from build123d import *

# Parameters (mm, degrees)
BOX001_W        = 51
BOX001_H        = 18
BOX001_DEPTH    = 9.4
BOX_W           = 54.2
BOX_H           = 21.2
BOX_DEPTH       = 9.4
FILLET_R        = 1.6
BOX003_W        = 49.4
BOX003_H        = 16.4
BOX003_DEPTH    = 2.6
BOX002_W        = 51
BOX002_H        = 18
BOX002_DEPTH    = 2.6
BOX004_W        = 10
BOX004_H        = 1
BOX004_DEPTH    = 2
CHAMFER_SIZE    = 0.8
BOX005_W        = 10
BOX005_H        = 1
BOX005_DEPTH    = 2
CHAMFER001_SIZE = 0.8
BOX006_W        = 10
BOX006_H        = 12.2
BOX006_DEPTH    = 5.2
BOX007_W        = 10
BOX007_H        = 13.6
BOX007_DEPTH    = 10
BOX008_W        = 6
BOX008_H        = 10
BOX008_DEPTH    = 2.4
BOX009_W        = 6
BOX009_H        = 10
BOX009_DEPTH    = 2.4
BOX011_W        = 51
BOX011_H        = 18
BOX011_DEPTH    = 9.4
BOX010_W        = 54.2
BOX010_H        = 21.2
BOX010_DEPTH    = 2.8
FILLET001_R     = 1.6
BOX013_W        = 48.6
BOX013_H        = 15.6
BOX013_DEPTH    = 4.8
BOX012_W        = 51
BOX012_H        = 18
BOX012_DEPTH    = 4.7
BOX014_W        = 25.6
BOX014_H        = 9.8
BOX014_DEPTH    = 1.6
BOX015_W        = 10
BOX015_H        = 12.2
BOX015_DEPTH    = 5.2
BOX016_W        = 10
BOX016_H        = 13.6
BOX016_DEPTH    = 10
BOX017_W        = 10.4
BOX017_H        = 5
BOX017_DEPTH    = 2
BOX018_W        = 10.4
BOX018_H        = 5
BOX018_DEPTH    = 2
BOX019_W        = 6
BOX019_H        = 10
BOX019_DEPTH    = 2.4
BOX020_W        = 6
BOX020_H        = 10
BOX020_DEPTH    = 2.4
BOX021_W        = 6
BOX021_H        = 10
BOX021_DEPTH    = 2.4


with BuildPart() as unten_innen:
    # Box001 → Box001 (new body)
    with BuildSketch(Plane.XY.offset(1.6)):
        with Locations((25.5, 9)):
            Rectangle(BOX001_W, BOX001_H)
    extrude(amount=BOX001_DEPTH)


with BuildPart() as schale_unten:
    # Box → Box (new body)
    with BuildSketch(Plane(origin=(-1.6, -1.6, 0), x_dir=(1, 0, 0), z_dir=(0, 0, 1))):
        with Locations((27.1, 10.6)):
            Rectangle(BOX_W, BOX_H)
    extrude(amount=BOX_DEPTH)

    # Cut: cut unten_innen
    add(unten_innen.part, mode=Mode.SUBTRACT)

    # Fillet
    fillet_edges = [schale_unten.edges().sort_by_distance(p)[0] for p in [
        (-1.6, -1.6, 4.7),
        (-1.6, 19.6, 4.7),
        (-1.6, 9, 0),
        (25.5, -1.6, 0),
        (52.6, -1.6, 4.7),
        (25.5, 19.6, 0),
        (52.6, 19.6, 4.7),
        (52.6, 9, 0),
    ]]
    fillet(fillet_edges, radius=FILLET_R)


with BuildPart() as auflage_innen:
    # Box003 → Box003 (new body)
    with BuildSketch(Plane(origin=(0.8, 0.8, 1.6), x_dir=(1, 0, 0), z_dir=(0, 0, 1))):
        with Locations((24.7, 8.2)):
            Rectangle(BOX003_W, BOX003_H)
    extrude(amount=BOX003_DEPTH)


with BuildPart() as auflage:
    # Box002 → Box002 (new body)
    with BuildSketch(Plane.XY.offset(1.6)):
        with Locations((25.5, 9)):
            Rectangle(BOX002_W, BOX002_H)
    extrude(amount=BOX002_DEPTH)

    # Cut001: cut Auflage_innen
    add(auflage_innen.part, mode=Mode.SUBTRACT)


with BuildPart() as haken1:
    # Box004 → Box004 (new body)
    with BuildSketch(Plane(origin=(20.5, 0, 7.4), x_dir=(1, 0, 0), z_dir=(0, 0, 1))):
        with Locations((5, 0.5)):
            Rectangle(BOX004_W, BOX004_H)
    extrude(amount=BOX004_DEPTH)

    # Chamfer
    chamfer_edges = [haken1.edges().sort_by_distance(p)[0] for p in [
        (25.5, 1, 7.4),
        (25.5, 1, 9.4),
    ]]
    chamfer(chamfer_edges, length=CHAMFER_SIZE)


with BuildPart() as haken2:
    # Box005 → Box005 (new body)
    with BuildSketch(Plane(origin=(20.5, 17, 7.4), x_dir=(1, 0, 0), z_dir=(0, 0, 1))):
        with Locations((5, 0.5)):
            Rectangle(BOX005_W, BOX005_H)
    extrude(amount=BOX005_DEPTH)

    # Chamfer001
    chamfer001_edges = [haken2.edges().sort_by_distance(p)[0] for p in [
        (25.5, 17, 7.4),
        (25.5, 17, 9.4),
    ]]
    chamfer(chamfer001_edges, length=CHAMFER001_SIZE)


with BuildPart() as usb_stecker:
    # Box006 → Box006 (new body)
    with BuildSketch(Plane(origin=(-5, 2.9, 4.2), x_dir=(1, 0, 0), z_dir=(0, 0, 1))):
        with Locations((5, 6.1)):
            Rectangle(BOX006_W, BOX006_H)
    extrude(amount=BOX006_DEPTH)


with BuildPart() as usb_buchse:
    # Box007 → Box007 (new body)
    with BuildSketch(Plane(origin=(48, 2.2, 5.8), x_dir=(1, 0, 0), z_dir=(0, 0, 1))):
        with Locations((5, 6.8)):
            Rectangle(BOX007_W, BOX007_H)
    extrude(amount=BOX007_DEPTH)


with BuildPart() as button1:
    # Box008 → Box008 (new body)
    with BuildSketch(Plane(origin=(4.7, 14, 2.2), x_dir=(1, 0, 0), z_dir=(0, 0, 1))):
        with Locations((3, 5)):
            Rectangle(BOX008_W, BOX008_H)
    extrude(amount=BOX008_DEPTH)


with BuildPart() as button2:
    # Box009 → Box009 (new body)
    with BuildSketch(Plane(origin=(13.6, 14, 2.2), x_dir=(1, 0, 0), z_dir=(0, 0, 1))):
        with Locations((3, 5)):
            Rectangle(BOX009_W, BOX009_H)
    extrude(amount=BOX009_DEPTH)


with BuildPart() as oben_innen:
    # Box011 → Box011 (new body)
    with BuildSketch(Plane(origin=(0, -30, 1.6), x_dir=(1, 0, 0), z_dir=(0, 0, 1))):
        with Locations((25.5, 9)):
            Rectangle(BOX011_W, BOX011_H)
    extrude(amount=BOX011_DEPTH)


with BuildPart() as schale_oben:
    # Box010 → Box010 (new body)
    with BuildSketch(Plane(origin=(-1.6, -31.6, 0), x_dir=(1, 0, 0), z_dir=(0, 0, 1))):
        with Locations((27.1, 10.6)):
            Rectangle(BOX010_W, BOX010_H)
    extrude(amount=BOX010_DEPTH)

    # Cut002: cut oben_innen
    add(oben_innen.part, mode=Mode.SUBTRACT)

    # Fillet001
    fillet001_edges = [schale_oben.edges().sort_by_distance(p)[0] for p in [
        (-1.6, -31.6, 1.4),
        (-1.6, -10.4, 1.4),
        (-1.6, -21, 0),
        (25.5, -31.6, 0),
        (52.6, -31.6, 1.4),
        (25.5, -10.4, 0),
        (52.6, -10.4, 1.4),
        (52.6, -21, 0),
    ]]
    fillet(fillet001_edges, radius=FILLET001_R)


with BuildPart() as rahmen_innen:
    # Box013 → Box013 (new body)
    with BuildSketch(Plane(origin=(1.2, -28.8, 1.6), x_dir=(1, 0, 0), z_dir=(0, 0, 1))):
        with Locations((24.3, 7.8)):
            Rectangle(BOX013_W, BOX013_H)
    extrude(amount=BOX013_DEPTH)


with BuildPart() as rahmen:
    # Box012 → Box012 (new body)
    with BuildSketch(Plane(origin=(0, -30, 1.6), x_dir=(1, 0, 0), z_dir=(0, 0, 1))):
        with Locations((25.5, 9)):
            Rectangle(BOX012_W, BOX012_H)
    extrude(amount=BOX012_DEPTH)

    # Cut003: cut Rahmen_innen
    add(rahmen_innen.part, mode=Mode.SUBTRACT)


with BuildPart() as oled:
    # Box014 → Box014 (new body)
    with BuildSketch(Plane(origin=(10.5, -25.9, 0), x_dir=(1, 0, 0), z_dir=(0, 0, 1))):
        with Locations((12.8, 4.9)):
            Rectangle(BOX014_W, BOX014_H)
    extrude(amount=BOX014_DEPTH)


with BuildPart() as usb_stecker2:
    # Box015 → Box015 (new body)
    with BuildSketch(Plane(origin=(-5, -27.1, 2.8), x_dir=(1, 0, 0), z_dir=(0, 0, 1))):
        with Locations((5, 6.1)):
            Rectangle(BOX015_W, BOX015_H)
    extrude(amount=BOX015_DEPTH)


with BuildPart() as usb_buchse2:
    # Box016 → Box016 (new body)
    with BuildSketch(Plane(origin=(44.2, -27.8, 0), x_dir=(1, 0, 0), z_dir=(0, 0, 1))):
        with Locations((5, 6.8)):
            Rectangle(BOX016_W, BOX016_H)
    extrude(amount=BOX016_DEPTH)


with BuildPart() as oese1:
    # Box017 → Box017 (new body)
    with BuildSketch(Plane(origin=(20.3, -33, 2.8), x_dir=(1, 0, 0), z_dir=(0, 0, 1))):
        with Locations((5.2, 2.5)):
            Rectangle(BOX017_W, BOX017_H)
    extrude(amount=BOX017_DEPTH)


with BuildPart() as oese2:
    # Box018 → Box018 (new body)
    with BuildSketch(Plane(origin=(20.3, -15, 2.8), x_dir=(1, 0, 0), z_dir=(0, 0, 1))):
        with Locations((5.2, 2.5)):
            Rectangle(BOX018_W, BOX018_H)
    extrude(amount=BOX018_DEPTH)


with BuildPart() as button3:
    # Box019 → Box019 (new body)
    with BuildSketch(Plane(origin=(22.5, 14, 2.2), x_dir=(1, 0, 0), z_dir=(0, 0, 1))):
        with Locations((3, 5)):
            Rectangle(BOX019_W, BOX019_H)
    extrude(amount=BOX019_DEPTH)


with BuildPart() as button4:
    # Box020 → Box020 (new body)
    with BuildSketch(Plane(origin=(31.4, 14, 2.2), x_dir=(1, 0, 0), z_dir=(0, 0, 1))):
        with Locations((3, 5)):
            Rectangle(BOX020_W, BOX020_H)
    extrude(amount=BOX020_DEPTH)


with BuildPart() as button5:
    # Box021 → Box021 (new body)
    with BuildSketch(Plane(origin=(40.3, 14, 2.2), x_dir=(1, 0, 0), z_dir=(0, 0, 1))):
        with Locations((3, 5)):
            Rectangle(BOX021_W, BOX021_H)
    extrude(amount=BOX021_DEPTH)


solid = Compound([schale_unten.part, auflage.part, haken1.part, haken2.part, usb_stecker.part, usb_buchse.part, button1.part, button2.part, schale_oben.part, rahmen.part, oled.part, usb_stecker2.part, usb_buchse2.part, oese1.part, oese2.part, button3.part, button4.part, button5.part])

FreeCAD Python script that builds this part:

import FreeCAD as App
import Part
import Sketcher


def edges_at(feature, points):
    """Names of the edges that pass closest to the given points."""
    edges = feature.Shape.Edges
    near = lambda p: min(range(len(edges)), key=lambda i: edges[i].distToShape(Part.Vertex(*p))[0])
    return sorted({f"Edge{near(p) + 1}" for p in points})


def add_polygon(sketch, points):
    """Adds a closed chain of lines whose ends are joined by coincident constraints."""
    first, n = sketch.GeometryCount, len(points)
    for a, b in zip(points, points[1:] + points[:1]):
        sketch.addGeometry(Part.LineSegment(App.Vector(*a, 0), App.Vector(*b, 0)), False)
    for i in range(n):
        sketch.addConstraint(Sketcher.Constraint("Coincident", first + i, 2, first + (i + 1) % n, 1))

doc = App.newDocument("Part")
body = doc.addObject("PartDesign::Body", "Body")

sketch1 = doc.addObject("Sketcher::SketchObject", "Sketch")
body.addObject(sketch1)
sketch1.AttachmentSupport = (doc.XY_Plane, [""])
sketch1.MapMode = "FlatFace"
sketch1.AttachmentOffset = App.Placement(App.Vector(0, 0, 1.6), App.Rotation())
add_polygon(sketch1, [(0, 18), (0, 0), (51, 0), (51, 18)])
sketch1.addConstraint(Sketcher.Constraint("Vertical", 0))
sketch1.addConstraint(Sketcher.Constraint("Horizontal", 1))
sketch1.addConstraint(Sketcher.Constraint("Vertical", 2))
sketch1.addConstraint(Sketcher.Constraint("Horizontal", 3))
sketch1.addConstraint(Sketcher.Constraint("Coincident", 0, 2, -1, 1))
sketch1.addConstraint(Sketcher.Constraint("DistanceX", 1, 1, 1, 2, 51.0))
sketch1.addConstraint(Sketcher.Constraint("DistanceY", 0, 2, 0, 1, 18.0))
pad1 = doc.addObject("PartDesign::Pad", "Pad")
body.addObject(pad1)
pad1.Profile = sketch1
pad1.Length = 9.4
body2 = doc.addObject("PartDesign::Body", "Body001")

sketch2 = doc.addObject("Sketcher::SketchObject", "Sketch001")
body2.addObject(sketch2)
sketch2.AttachmentSupport = (doc.getObject("XY_Plane001"), [""])
sketch2.MapMode = "FlatFace"
add_polygon(sketch2, [(-2, 20), (-2, -2), (53, -2), (53, 20)])
sketch2.addConstraint(Sketcher.Constraint("Vertical", 0))
sketch2.addConstraint(Sketcher.Constraint("Horizontal", 1))
sketch2.addConstraint(Sketcher.Constraint("Vertical", 2))
sketch2.addConstraint(Sketcher.Constraint("Horizontal", 3))
sketch2.addConstraint(Sketcher.Constraint("DistanceX", 1, 1, 1, 2, 54.2))
sketch2.addConstraint(Sketcher.Constraint("DistanceY", 0, 2, 0, 1, 21.2))
sketch2.addConstraint(Sketcher.Constraint("DistanceX", 0, 2, -1, 1, 1.6))
sketch2.addConstraint(Sketcher.Constraint("DistanceY", 0, 2, -1, 1, 1.6))
pad2 = doc.addObject("PartDesign::Pad", "Pad001")
body2.addObject(pad2)
pad2.Profile = sketch2
pad2.Length = 9.4
doc.recompute()

boolean = doc.addObject("PartDesign::Boolean", "Boolean")
body2.addObject(boolean)
boolean.Type = "Cut"
boolean.addObjects([body])
doc.recompute()

fillet = doc.addObject("PartDesign::Fillet", "Fillet")
body2.addObject(fillet)
fillet.Base = (boolean, edges_at(boolean, [
    (-1.6, -1.6, 4.7),
    (-1.6, 19.6, 4.7),
    (-1.6, 9, 0),
    (25.5, -1.6, 0),
    (52.6, -1.6, 4.7),
    (25.5, 19.6, 0),
    (52.6, 19.6, 4.7),
    (52.6, 9, 0),
]))
fillet.Radius = 1.6
body3 = doc.addObject("PartDesign::Body", "Body002")

sketch3 = doc.addObject("Sketcher::SketchObject", "Sketch002")
body3.addObject(sketch3)
sketch3.AttachmentSupport = (doc.getObject("XY_Plane002"), [""])
sketch3.MapMode = "FlatFace"
sketch3.AttachmentOffset = App.Placement(App.Vector(0, 0, 1.6), App.Rotation())
add_polygon(sketch3, [(1, 17), (1, 1), (50, 1), (50, 17)])
sketch3.addConstraint(Sketcher.Constraint("Vertical", 0))
sketch3.addConstraint(Sketcher.Constraint("Horizontal", 1))
sketch3.addConstraint(Sketcher.Constraint("Vertical", 2))
sketch3.addConstraint(Sketcher.Constraint("Horizontal", 3))
sketch3.addConstraint(Sketcher.Constraint("DistanceX", 1, 1, 1, 2, 49.4))
sketch3.addConstraint(Sketcher.Constraint("DistanceY", 0, 2, 0, 1, 16.4))
sketch3.addConstraint(Sketcher.Constraint("DistanceX", -1, 1, 0, 2, 0.8))
sketch3.addConstraint(Sketcher.Constraint("DistanceY", -1, 1, 0, 2, 0.8))
pad3 = doc.addObject("PartDesign::Pad", "Pad002")
body3.addObject(pad3)
pad3.Profile = sketch3
pad3.Length = 2.6
body4 = doc.addObject("PartDesign::Body", "Body003")

sketch4 = doc.addObject("Sketcher::SketchObject", "Sketch003")
body4.addObject(sketch4)
sketch4.AttachmentSupport = (doc.getObject("XY_Plane003"), [""])
sketch4.MapMode = "FlatFace"
sketch4.AttachmentOffset = App.Placement(App.Vector(0, 0, 1.6), App.Rotation())
add_polygon(sketch4, [(0, 18), (0, 0), (51, 0), (51, 18)])
sketch4.addConstraint(Sketcher.Constraint("Vertical", 0))
sketch4.addConstraint(Sketcher.Constraint("Horizontal", 1))
sketch4.addConstraint(Sketcher.Constraint("Vertical", 2))
sketch4.addConstraint(Sketcher.Constraint("Horizontal", 3))
sketch4.addConstraint(Sketcher.Constraint("Coincident", 0, 2, -1, 1))
sketch4.addConstraint(Sketcher.Constraint("DistanceX", 1, 1, 1, 2, 51.0))
sketch4.addConstraint(Sketcher.Constraint("DistanceY", 0, 2, 0, 1, 18.0))
pad4 = doc.addObject("PartDesign::Pad", "Pad003")
body4.addObject(pad4)
pad4.Profile = sketch4
pad4.Length = 2.6
doc.recompute()

boolean2 = doc.addObject("PartDesign::Boolean", "Boolean001")
body4.addObject(boolean2)
boolean2.Type = "Cut"
boolean2.addObjects([body3])
body5 = doc.addObject("PartDesign::Body", "Body004")

sketch5 = doc.addObject("Sketcher::SketchObject", "Sketch004")
body5.addObject(sketch5)
sketch5.AttachmentSupport = (doc.getObject("XY_Plane004"), [""])
sketch5.MapMode = "FlatFace"
sketch5.AttachmentOffset = App.Placement(App.Vector(0, 0, 7.4), App.Rotation())
add_polygon(sketch5, [(20.5, 1), (20.5, 0), (30.5, 0), (30.5, 1)])
sketch5.addConstraint(Sketcher.Constraint("Vertical", 0))
sketch5.addConstraint(Sketcher.Constraint("Horizontal", 1))
sketch5.addConstraint(Sketcher.Constraint("Vertical", 2))
sketch5.addConstraint(Sketcher.Constraint("Horizontal", 3))
sketch5.addConstraint(Sketcher.Constraint("PointOnObject", 0, 2, -1))
sketch5.addConstraint(Sketcher.Constraint("DistanceX", 1, 1, 1, 2, 10.0))
sketch5.addConstraint(Sketcher.Constraint("DistanceY", 0, 2, 0, 1, 1.0))
sketch5.addConstraint(Sketcher.Constraint("DistanceX", -1, 1, 0, 2, 20.5))
pad5 = doc.addObject("PartDesign::Pad", "Pad004")
body5.addObject(pad5)
pad5.Profile = sketch5
pad5.Length = 2
doc.recompute()

chamfer = doc.addObject("PartDesign::Chamfer", "Chamfer")
body5.addObject(chamfer)
chamfer.Base = (pad5, edges_at(pad5, [(25.5, 1, 7.4), (25.5, 1, 9.4)]))
chamfer.Size = 0.8
body6 = doc.addObject("PartDesign::Body", "Body005")

sketch6 = doc.addObject("Sketcher::SketchObject", "Sketch005")
body6.addObject(sketch6)
sketch6.AttachmentSupport = (doc.getObject("XY_Plane005"), [""])
sketch6.MapMode = "FlatFace"
sketch6.AttachmentOffset = App.Placement(App.Vector(0, 0, 7.4), App.Rotation())
add_polygon(sketch6, [(20.5, 18), (20.5, 17), (30.5, 17), (30.5, 18)])
sketch6.addConstraint(Sketcher.Constraint("Vertical", 0))
sketch6.addConstraint(Sketcher.Constraint("Horizontal", 1))
sketch6.addConstraint(Sketcher.Constraint("Vertical", 2))
sketch6.addConstraint(Sketcher.Constraint("Horizontal", 3))
sketch6.addConstraint(Sketcher.Constraint("DistanceX", 1, 1, 1, 2, 10.0))
sketch6.addConstraint(Sketcher.Constraint("DistanceY", 0, 2, 0, 1, 1.0))
sketch6.addConstraint(Sketcher.Constraint("DistanceY", -1, 1, 0, 2, 17.0))
sketch6.addConstraint(Sketcher.Constraint("DistanceX", -1, 1, 0, 2, 20.5))
pad6 = doc.addObject("PartDesign::Pad", "Pad005")
body6.addObject(pad6)
pad6.Profile = sketch6
pad6.Length = 2
doc.recompute()

chamfer2 = doc.addObject("PartDesign::Chamfer", "Chamfer001")
body6.addObject(chamfer2)
chamfer2.Base = (pad6, edges_at(pad6, [(25.5, 17, 7.4), (25.5, 17, 9.4)]))
chamfer2.Size = 0.8
body7 = doc.addObject("PartDesign::Body", "Body006")

sketch7 = doc.addObject("Sketcher::SketchObject", "Sketch006")
body7.addObject(sketch7)
sketch7.AttachmentSupport = (doc.getObject("XY_Plane006"), [""])
sketch7.MapMode = "FlatFace"
sketch7.AttachmentOffset = App.Placement(App.Vector(0, 0, 4.2), App.Rotation())
add_polygon(sketch7, [(-5, 15), (-5, 3), (5, 3), (5, 15)])
sketch7.addConstraint(Sketcher.Constraint("Vertical", 0))
sketch7.addConstraint(Sketcher.Constraint("Horizontal", 1))
sketch7.addConstraint(Sketcher.Constraint("Vertical", 2))
sketch7.addConstraint(Sketcher.Constraint("Horizontal", 3))
sketch7.addConstraint(Sketcher.Constraint("DistanceX", 1, 1, 1, 2, 10.0))
sketch7.addConstraint(Sketcher.Constraint("DistanceY", 0, 2, 0, 1, 12.2))
sketch7.addConstraint(Sketcher.Constraint("DistanceX", 0, 2, -1, 1, 5.0))
sketch7.addConstraint(Sketcher.Constraint("DistanceY", -1, 1, 0, 2, 2.9))
pad7 = doc.addObject("PartDesign::Pad", "Pad006")
body7.addObject(pad7)
pad7.Profile = sketch7
pad7.Length = 5.2
body8 = doc.addObject("PartDesign::Body", "Body007")

sketch8 = doc.addObject("Sketcher::SketchObject", "Sketch007")
body8.addObject(sketch8)
sketch8.AttachmentSupport = (doc.getObject("XY_Plane007"), [""])
sketch8.MapMode = "FlatFace"
sketch8.AttachmentOffset = App.Placement(App.Vector(0, 0, 5.8), App.Rotation())
add_polygon(sketch8, [(48, 16), (48, 2), (58, 2), (58, 16)])
sketch8.addConstraint(Sketcher.Constraint("Vertical", 0))
sketch8.addConstraint(Sketcher.Constraint("Horizontal", 1))
sketch8.addConstraint(Sketcher.Constraint("Vertical", 2))
sketch8.addConstraint(Sketcher.Constraint("Horizontal", 3))
sketch8.addConstraint(Sketcher.Constraint("DistanceX", 1, 1, 1, 2, 10.0))
sketch8.addConstraint(Sketcher.Constraint("DistanceY", 0, 2, 0, 1, 13.6))
sketch8.addConstraint(Sketcher.Constraint("DistanceX", -1, 1, 0, 2, 48.0))
sketch8.addConstraint(Sketcher.Constraint("DistanceY", -1, 1, 0, 2, 2.2))
pad8 = doc.addObject("PartDesign::Pad", "Pad007")
body8.addObject(pad8)
pad8.Profile = sketch8
pad8.Length = 10
body9 = doc.addObject("PartDesign::Body", "Body008")

sketch9 = doc.addObject("Sketcher::SketchObject", "Sketch008")
body9.addObject(sketch9)
sketch9.AttachmentSupport = (doc.getObject("XY_Plane008"), [""])
sketch9.MapMode = "FlatFace"
sketch9.AttachmentOffset = App.Placement(App.Vector(0, 0, 2.2), App.Rotation())
add_polygon(sketch9, [(5, 24), (5, 14), (11, 14), (11, 24)])
sketch9.addConstraint(Sketcher.Constraint("Vertical", 0))
sketch9.addConstraint(Sketcher.Constraint("Horizontal", 1))
sketch9.addConstraint(Sketcher.Constraint("Vertical", 2))
sketch9.addConstraint(Sketcher.Constraint("Horizontal", 3))
sketch9.addConstraint(Sketcher.Constraint("DistanceX", 1, 1, 1, 2, 6.0))
sketch9.addConstraint(Sketcher.Constraint("DistanceY", 0, 2, 0, 1, 10.0))
sketch9.addConstraint(Sketcher.Constraint("DistanceY", -1, 1, 0, 2, 14.0))
sketch9.addConstraint(Sketcher.Constraint("DistanceX", -1, 1, 0, 2, 4.7))
pad9 = doc.addObject("PartDesign::Pad", "Pad008")
body9.addObject(pad9)
pad9.Profile = sketch9
pad9.Length = 2.4
body10 = doc.addObject("PartDesign::Body", "Body009")

sketch10 = doc.addObject("Sketcher::SketchObject", "Sketch009")
body10.addObject(sketch10)
sketch10.AttachmentSupport = (doc.getObject("XY_Plane009"), [""])
sketch10.MapMode = "FlatFace"
sketch10.AttachmentOffset = App.Placement(App.Vector(0, 0, 2.2), App.Rotation())
add_polygon(sketch10, [(14, 24), (14, 14), (20, 14), (20, 24)])
sketch10.addConstraint(Sketcher.Constraint("Vertical", 0))
sketch10.addConstraint(Sketcher.Constraint("Horizontal", 1))
sketch10.addConstraint(Sketcher.Constraint("Vertical", 2))
sketch10.addConstraint(Sketcher.Constraint("Horizontal", 3))
sketch10.addConstraint(Sketcher.Constraint("DistanceX", 1, 1, 1, 2, 6.0))
sketch10.addConstraint(Sketcher.Constraint("DistanceY", 0, 2, 0, 1, 10.0))
sketch10.addConstraint(Sketcher.Constraint("DistanceY", -1, 1, 0, 2, 14.0))
sketch10.addConstraint(Sketcher.Constraint("DistanceX", -1, 1, 0, 2, 13.6))
pad10 = doc.addObject("PartDesign::Pad", "Pad009")
body10.addObject(pad10)
pad10.Profile = sketch10
pad10.Length = 2.4
body11 = doc.addObject("PartDesign::Body", "Body010")

sketch11 = doc.addObject("Sketcher::SketchObject", "Sketch010")
body11.addObject(sketch11)
sketch11.AttachmentSupport = (doc.getObject("XY_Plane010"), [""])
sketch11.MapMode = "FlatFace"
sketch11.AttachmentOffset = App.Placement(App.Vector(0, 0, 1.6), App.Rotation())
add_polygon(sketch11, [(0, -12), (0, -30), (51, -30), (51, -12)])
sketch11.addConstraint(Sketcher.Constraint("Vertical", 0))
sketch11.addConstraint(Sketcher.Constraint("Horizontal", 1))
sketch11.addConstraint(Sketcher.Constraint("Vertical", 2))
sketch11.addConstraint(Sketcher.Constraint("Horizontal", 3))
sketch11.addConstraint(Sketcher.Constraint("PointOnObject", 0, 2, -2))
sketch11.addConstraint(Sketcher.Constraint("DistanceX", 1, 1, 1, 2, 51.0))
sketch11.addConstraint(Sketcher.Constraint("DistanceY", 0, 2, 0, 1, 18.0))
sketch11.addConstraint(Sketcher.Constraint("DistanceY", 0, 2, -1, 1, 30.0))
pad11 = doc.addObject("PartDesign::Pad", "Pad010")
body11.addObject(pad11)
pad11.Profile = sketch11
pad11.Length = 9.4
body12 = doc.addObject("PartDesign::Body", "Body011")

sketch12 = doc.addObject("Sketcher::SketchObject", "Sketch011")
body12.addObject(sketch12)
sketch12.AttachmentSupport = (doc.getObject("XY_Plane011"), [""])
sketch12.MapMode = "FlatFace"
add_polygon(sketch12, [(-2, -10), (-2, -32), (53, -32), (53, -10)])
sketch12.addConstraint(Sketcher.Constraint("Vertical", 0))
sketch12.addConstraint(Sketcher.Constraint("Horizontal", 1))
sketch12.addConstraint(Sketcher.Constraint("Vertical", 2))
sketch12.addConstraint(Sketcher.Constraint("Horizontal", 3))
sketch12.addConstraint(Sketcher.Constraint("DistanceX", 1, 1, 1, 2, 54.2))
sketch12.addConstraint(Sketcher.Constraint("DistanceY", 0, 2, 0, 1, 21.2))
sketch12.addConstraint(Sketcher.Constraint("DistanceX", 0, 2, -1, 1, 1.6))
sketch12.addConstraint(Sketcher.Constraint("DistanceY", 0, 2, -1, 1, 31.6))
pad12 = doc.addObject("PartDesign::Pad", "Pad011")
body12.addObject(pad12)
pad12.Profile = sketch12
pad12.Length = 2.8
doc.recompute()

boolean3 = doc.addObject("PartDesign::Boolean", "Boolean002")
body12.addObject(boolean3)
boolean3.Type = "Cut"
boolean3.addObjects([body11])
doc.recompute()

fillet2 = doc.addObject("PartDesign::Fillet", "Fillet001")
body12.addObject(fillet2)
fillet2.Base = (boolean3, edges_at(boolean3, [
    (-1.6, -31.6, 1.4),
    (-1.6, -10.4, 1.4),
    (-1.6, -21, 0),
    (25.5, -31.6, 0),
    (52.6, -31.6, 1.4),
    (25.5, -10.4, 0),
    (52.6, -10.4, 1.4),
    (52.6, -21, 0),
]))
fillet2.Radius = 1.6
body13 = doc.addObject("PartDesign::Body", "Body012")

sketch13 = doc.addObject("Sketcher::SketchObject", "Sketch012")
body13.addObject(sketch13)
sketch13.AttachmentSupport = (doc.getObject("XY_Plane012"), [""])
sketch13.MapMode = "FlatFace"
sketch13.AttachmentOffset = App.Placement(App.Vector(0, 0, 1.6), App.Rotation())
add_polygon(sketch13, [(1, -13), (1, -29), (50, -29), (50, -13)])
sketch13.addConstraint(Sketcher.Constraint("Vertical", 0))
sketch13.addConstraint(Sketcher.Constraint("Horizontal", 1))
sketch13.addConstraint(Sketcher.Constraint("Vertical", 2))
sketch13.addConstraint(Sketcher.Constraint("Horizontal", 3))
sketch13.addConstraint(Sketcher.Constraint("DistanceX", 1, 1, 1, 2, 48.6))
sketch13.addConstraint(Sketcher.Constraint("DistanceY", 0, 2, 0, 1, 15.6))
sketch13.addConstraint(Sketcher.Constraint("DistanceX", -1, 1, 0, 2, 1.2))
sketch13.addConstraint(Sketcher.Constraint("DistanceY", 0, 2, -1, 1, 28.8))
pad13 = doc.addObject("PartDesign::Pad", "Pad012")
body13.addObject(pad13)
pad13.Profile = sketch13
pad13.Length = 4.8
body14 = doc.addObject("PartDesign::Body", "Body013")

sketch14 = doc.addObject("Sketcher::SketchObject", "Sketch013")
body14.addObject(sketch14)
sketch14.AttachmentSupport = (doc.getObject("XY_Plane013"), [""])
sketch14.MapMode = "FlatFace"
sketch14.AttachmentOffset = App.Placement(App.Vector(0, 0, 1.6), App.Rotation())
add_polygon(sketch14, [(0, -12), (0, -30), (51, -30), (51, -12)])
sketch14.addConstraint(Sketcher.Constraint("Vertical", 0))
sketch14.addConstraint(Sketcher.Constraint("Horizontal", 1))
sketch14.addConstraint(Sketcher.Constraint("Vertical", 2))
sketch14.addConstraint(Sketcher.Constraint("Horizontal", 3))
sketch14.addConstraint(Sketcher.Constraint("PointOnObject", 0, 2, -2))
sketch14.addConstraint(Sketcher.Constraint("DistanceX", 1, 1, 1, 2, 51.0))
sketch14.addConstraint(Sketcher.Constraint("DistanceY", 0, 2, 0, 1, 18.0))
sketch14.addConstraint(Sketcher.Constraint("DistanceY", 0, 2, -1, 1, 30.0))
pad14 = doc.addObject("PartDesign::Pad", "Pad013")
body14.addObject(pad14)
pad14.Profile = sketch14
pad14.Length = 4.7
doc.recompute()

boolean4 = doc.addObject("PartDesign::Boolean", "Boolean003")
body14.addObject(boolean4)
boolean4.Type = "Cut"
boolean4.addObjects([body13])
body15 = doc.addObject("PartDesign::Body", "Body014")

sketch15 = doc.addObject("Sketcher::SketchObject", "Sketch014")
body15.addObject(sketch15)
sketch15.AttachmentSupport = (doc.getObject("XY_Plane014"), [""])
sketch15.MapMode = "FlatFace"
add_polygon(sketch15, [(10, -16), (10, -26), (36, -26), (36, -16)])
sketch15.addConstraint(Sketcher.Constraint("Vertical", 0))
sketch15.addConstraint(Sketcher.Constraint("Horizontal", 1))
sketch15.addConstraint(Sketcher.Constraint("Vertical", 2))
sketch15.addConstraint(Sketcher.Constraint("Horizontal", 3))
sketch15.addConstraint(Sketcher.Constraint("DistanceX", 1, 1, 1, 2, 25.6))
sketch15.addConstraint(Sketcher.Constraint("DistanceY", 0, 2, 0, 1, 9.8))
sketch15.addConstraint(Sketcher.Constraint("DistanceX", -1, 1, 0, 2, 10.5))
sketch15.addConstraint(Sketcher.Constraint("DistanceY", 0, 2, -1, 1, 25.9))
pad15 = doc.addObject("PartDesign::Pad", "Pad014")
body15.addObject(pad15)
pad15.Profile = sketch15
pad15.Length = 1.6
body16 = doc.addObject("PartDesign::Body", "Body015")

sketch16 = doc.addObject("Sketcher::SketchObject", "Sketch015")
body16.addObject(sketch16)
sketch16.AttachmentSupport = (doc.getObject("XY_Plane015"), [""])
sketch16.MapMode = "FlatFace"
sketch16.AttachmentOffset = App.Placement(App.Vector(0, 0, 2.8), App.Rotation())
add_polygon(sketch16, [(-5, -15), (-5, -27), (5, -27), (5, -15)])
sketch16.addConstraint(Sketcher.Constraint("Vertical", 0))
sketch16.addConstraint(Sketcher.Constraint("Horizontal", 1))
sketch16.addConstraint(Sketcher.Constraint("Vertical", 2))
sketch16.addConstraint(Sketcher.Constraint("Horizontal", 3))
sketch16.addConstraint(Sketcher.Constraint("DistanceX", 1, 1, 1, 2, 10.0))
sketch16.addConstraint(Sketcher.Constraint("DistanceY", 0, 2, 0, 1, 12.2))
sketch16.addConstraint(Sketcher.Constraint("DistanceX", 0, 2, -1, 1, 5.0))
sketch16.addConstraint(Sketcher.Constraint("DistanceY", 0, 2, -1, 1, 27.1))
pad16 = doc.addObject("PartDesign::Pad", "Pad015")
body16.addObject(pad16)
pad16.Profile = sketch16
pad16.Length = 5.2
body17 = doc.addObject("PartDesign::Body", "Body016")

sketch17 = doc.addObject("Sketcher::SketchObject", "Sketch016")
body17.addObject(sketch17)
sketch17.AttachmentSupport = (doc.getObject("XY_Plane016"), [""])
sketch17.MapMode = "FlatFace"
add_polygon(sketch17, [(44, -14), (44, -28), (54, -28), (54, -14)])
sketch17.addConstraint(Sketcher.Constraint("Vertical", 0))
sketch17.addConstraint(Sketcher.Constraint("Horizontal", 1))
sketch17.addConstraint(Sketcher.Constraint("Vertical", 2))
sketch17.addConstraint(Sketcher.Constraint("Horizontal", 3))
sketch17.addConstraint(Sketcher.Constraint("DistanceX", 1, 1, 1, 2, 10.0))
sketch17.addConstraint(Sketcher.Constraint("DistanceY", 0, 2, 0, 1, 13.6))
sketch17.addConstraint(Sketcher.Constraint("DistanceX", -1, 1, 0, 2, 44.2))
sketch17.addConstraint(Sketcher.Constraint("DistanceY", 0, 2, -1, 1, 27.8))
pad17 = doc.addObject("PartDesign::Pad", "Pad016")
body17.addObject(pad17)
pad17.Profile = sketch17
pad17.Length = 10
body18 = doc.addObject("PartDesign::Body", "Body017")

sketch18 = doc.addObject("Sketcher::SketchObject", "Sketch017")
body18.addObject(sketch18)
sketch18.AttachmentSupport = (doc.getObject("XY_Plane017"), [""])
sketch18.MapMode = "FlatFace"
sketch18.AttachmentOffset = App.Placement(App.Vector(0, 0, 2.8), App.Rotation())
add_polygon(sketch18, [(20, -28), (20, -33), (31, -33), (31, -28)])
sketch18.addConstraint(Sketcher.Constraint("Vertical", 0))
sketch18.addConstraint(Sketcher.Constraint("Horizontal", 1))
sketch18.addConstraint(Sketcher.Constraint("Vertical", 2))
sketch18.addConstraint(Sketcher.Constraint("Horizontal", 3))
sketch18.addConstraint(Sketcher.Constraint("DistanceY", 0, 2, 0, 1, 5.0))
sketch18.addConstraint(Sketcher.Constraint("DistanceX", 1, 1, 1, 2, 10.4))
sketch18.addConstraint(Sketcher.Constraint("DistanceY", 0, 2, -1, 1, 33.0))
sketch18.addConstraint(Sketcher.Constraint("DistanceX", -1, 1, 0, 2, 20.3))
pad18 = doc.addObject("PartDesign::Pad", "Pad017")
body18.addObject(pad18)
pad18.Profile = sketch18
pad18.Length = 2
body19 = doc.addObject("PartDesign::Body", "Body018")

sketch19 = doc.addObject("Sketcher::SketchObject", "Sketch018")
body19.addObject(sketch19)
sketch19.AttachmentSupport = (doc.getObject("XY_Plane018"), [""])
sketch19.MapMode = "FlatFace"
sketch19.AttachmentOffset = App.Placement(App.Vector(0, 0, 2.8), App.Rotation())
add_polygon(sketch19, [(20, -10), (20, -15), (31, -15), (31, -10)])
sketch19.addConstraint(Sketcher.Constraint("Vertical", 0))
sketch19.addConstraint(Sketcher.Constraint("Horizontal", 1))
sketch19.addConstraint(Sketcher.Constraint("Vertical", 2))
sketch19.addConstraint(Sketcher.Constraint("Horizontal", 3))
sketch19.addConstraint(Sketcher.Constraint("DistanceY", 0, 2, 0, 1, 5.0))
sketch19.addConstraint(Sketcher.Constraint("DistanceX", 1, 1, 1, 2, 10.4))
sketch19.addConstraint(Sketcher.Constraint("DistanceY", 0, 2, -1, 1, 15.0))
sketch19.addConstraint(Sketcher.Constraint("DistanceX", -1, 1, 0, 2, 20.3))
pad19 = doc.addObject("PartDesign::Pad", "Pad018")
body19.addObject(pad19)
pad19.Profile = sketch19
pad19.Length = 2
body20 = doc.addObject("PartDesign::Body", "Body019")

sketch20 = doc.addObject("Sketcher::SketchObject", "Sketch019")
body20.addObject(sketch20)
sketch20.AttachmentSupport = (doc.getObject("XY_Plane019"), [""])
sketch20.MapMode = "FlatFace"
sketch20.AttachmentOffset = App.Placement(App.Vector(0, 0, 2.2), App.Rotation())
add_polygon(sketch20, [(22, 24), (22, 14), (28, 14), (28, 24)])
sketch20.addConstraint(Sketcher.Constraint("Vertical", 0))
sketch20.addConstraint(Sketcher.Constraint("Horizontal", 1))
sketch20.addConstraint(Sketcher.Constraint("Vertical", 2))
sketch20.addConstraint(Sketcher.Constraint("Horizontal", 3))
sketch20.addConstraint(Sketcher.Constraint("DistanceX", 1, 1, 1, 2, 6.0))
sketch20.addConstraint(Sketcher.Constraint("DistanceY", 0, 2, 0, 1, 10.0))
sketch20.addConstraint(Sketcher.Constraint("DistanceY", -1, 1, 0, 2, 14.0))
sketch20.addConstraint(Sketcher.Constraint("DistanceX", -1, 1, 0, 2, 22.5))
pad20 = doc.addObject("PartDesign::Pad", "Pad019")
body20.addObject(pad20)
pad20.Profile = sketch20
pad20.Length = 2.4
body21 = doc.addObject("PartDesign::Body", "Body020")

sketch21 = doc.addObject("Sketcher::SketchObject", "Sketch020")
body21.addObject(sketch21)
sketch21.AttachmentSupport = (doc.getObject("XY_Plane020"), [""])
sketch21.MapMode = "FlatFace"
sketch21.AttachmentOffset = App.Placement(App.Vector(0, 0, 2.2), App.Rotation())
add_polygon(sketch21, [(31, 24), (31, 14), (37, 14), (37, 24)])
sketch21.addConstraint(Sketcher.Constraint("Vertical", 0))
sketch21.addConstraint(Sketcher.Constraint("Horizontal", 1))
sketch21.addConstraint(Sketcher.Constraint("Vertical", 2))
sketch21.addConstraint(Sketcher.Constraint("Horizontal", 3))
sketch21.addConstraint(Sketcher.Constraint("DistanceX", 1, 1, 1, 2, 6.0))
sketch21.addConstraint(Sketcher.Constraint("DistanceY", 0, 2, 0, 1, 10.0))
sketch21.addConstraint(Sketcher.Constraint("DistanceY", -1, 1, 0, 2, 14.0))
sketch21.addConstraint(Sketcher.Constraint("DistanceX", -1, 1, 0, 2, 31.4))
pad21 = doc.addObject("PartDesign::Pad", "Pad020")
body21.addObject(pad21)
pad21.Profile = sketch21
pad21.Length = 2.4
body22 = doc.addObject("PartDesign::Body", "Body021")

sketch22 = doc.addObject("Sketcher::SketchObject", "Sketch021")
body22.addObject(sketch22)
sketch22.AttachmentSupport = (doc.getObject("XY_Plane021"), [""])
sketch22.MapMode = "FlatFace"
sketch22.AttachmentOffset = App.Placement(App.Vector(0, 0, 2.2), App.Rotation())
add_polygon(sketch22, [(40, 24), (40, 14), (46, 14), (46, 24)])
sketch22.addConstraint(Sketcher.Constraint("Vertical", 0))
sketch22.addConstraint(Sketcher.Constraint("Horizontal", 1))
sketch22.addConstraint(Sketcher.Constraint("Vertical", 2))
sketch22.addConstraint(Sketcher.Constraint("Horizontal", 3))
sketch22.addConstraint(Sketcher.Constraint("DistanceX", 1, 1, 1, 2, 6.0))
sketch22.addConstraint(Sketcher.Constraint("DistanceY", 0, 2, 0, 1, 10.0))
sketch22.addConstraint(Sketcher.Constraint("DistanceY", -1, 1, 0, 2, 14.0))
sketch22.addConstraint(Sketcher.Constraint("DistanceX", -1, 1, 0, 2, 40.3))
pad22 = doc.addObject("PartDesign::Pad", "Pad021")
body22.addObject(pad22)
pad22.Profile = sketch22
pad22.Length = 2.4

doc.recompute()
